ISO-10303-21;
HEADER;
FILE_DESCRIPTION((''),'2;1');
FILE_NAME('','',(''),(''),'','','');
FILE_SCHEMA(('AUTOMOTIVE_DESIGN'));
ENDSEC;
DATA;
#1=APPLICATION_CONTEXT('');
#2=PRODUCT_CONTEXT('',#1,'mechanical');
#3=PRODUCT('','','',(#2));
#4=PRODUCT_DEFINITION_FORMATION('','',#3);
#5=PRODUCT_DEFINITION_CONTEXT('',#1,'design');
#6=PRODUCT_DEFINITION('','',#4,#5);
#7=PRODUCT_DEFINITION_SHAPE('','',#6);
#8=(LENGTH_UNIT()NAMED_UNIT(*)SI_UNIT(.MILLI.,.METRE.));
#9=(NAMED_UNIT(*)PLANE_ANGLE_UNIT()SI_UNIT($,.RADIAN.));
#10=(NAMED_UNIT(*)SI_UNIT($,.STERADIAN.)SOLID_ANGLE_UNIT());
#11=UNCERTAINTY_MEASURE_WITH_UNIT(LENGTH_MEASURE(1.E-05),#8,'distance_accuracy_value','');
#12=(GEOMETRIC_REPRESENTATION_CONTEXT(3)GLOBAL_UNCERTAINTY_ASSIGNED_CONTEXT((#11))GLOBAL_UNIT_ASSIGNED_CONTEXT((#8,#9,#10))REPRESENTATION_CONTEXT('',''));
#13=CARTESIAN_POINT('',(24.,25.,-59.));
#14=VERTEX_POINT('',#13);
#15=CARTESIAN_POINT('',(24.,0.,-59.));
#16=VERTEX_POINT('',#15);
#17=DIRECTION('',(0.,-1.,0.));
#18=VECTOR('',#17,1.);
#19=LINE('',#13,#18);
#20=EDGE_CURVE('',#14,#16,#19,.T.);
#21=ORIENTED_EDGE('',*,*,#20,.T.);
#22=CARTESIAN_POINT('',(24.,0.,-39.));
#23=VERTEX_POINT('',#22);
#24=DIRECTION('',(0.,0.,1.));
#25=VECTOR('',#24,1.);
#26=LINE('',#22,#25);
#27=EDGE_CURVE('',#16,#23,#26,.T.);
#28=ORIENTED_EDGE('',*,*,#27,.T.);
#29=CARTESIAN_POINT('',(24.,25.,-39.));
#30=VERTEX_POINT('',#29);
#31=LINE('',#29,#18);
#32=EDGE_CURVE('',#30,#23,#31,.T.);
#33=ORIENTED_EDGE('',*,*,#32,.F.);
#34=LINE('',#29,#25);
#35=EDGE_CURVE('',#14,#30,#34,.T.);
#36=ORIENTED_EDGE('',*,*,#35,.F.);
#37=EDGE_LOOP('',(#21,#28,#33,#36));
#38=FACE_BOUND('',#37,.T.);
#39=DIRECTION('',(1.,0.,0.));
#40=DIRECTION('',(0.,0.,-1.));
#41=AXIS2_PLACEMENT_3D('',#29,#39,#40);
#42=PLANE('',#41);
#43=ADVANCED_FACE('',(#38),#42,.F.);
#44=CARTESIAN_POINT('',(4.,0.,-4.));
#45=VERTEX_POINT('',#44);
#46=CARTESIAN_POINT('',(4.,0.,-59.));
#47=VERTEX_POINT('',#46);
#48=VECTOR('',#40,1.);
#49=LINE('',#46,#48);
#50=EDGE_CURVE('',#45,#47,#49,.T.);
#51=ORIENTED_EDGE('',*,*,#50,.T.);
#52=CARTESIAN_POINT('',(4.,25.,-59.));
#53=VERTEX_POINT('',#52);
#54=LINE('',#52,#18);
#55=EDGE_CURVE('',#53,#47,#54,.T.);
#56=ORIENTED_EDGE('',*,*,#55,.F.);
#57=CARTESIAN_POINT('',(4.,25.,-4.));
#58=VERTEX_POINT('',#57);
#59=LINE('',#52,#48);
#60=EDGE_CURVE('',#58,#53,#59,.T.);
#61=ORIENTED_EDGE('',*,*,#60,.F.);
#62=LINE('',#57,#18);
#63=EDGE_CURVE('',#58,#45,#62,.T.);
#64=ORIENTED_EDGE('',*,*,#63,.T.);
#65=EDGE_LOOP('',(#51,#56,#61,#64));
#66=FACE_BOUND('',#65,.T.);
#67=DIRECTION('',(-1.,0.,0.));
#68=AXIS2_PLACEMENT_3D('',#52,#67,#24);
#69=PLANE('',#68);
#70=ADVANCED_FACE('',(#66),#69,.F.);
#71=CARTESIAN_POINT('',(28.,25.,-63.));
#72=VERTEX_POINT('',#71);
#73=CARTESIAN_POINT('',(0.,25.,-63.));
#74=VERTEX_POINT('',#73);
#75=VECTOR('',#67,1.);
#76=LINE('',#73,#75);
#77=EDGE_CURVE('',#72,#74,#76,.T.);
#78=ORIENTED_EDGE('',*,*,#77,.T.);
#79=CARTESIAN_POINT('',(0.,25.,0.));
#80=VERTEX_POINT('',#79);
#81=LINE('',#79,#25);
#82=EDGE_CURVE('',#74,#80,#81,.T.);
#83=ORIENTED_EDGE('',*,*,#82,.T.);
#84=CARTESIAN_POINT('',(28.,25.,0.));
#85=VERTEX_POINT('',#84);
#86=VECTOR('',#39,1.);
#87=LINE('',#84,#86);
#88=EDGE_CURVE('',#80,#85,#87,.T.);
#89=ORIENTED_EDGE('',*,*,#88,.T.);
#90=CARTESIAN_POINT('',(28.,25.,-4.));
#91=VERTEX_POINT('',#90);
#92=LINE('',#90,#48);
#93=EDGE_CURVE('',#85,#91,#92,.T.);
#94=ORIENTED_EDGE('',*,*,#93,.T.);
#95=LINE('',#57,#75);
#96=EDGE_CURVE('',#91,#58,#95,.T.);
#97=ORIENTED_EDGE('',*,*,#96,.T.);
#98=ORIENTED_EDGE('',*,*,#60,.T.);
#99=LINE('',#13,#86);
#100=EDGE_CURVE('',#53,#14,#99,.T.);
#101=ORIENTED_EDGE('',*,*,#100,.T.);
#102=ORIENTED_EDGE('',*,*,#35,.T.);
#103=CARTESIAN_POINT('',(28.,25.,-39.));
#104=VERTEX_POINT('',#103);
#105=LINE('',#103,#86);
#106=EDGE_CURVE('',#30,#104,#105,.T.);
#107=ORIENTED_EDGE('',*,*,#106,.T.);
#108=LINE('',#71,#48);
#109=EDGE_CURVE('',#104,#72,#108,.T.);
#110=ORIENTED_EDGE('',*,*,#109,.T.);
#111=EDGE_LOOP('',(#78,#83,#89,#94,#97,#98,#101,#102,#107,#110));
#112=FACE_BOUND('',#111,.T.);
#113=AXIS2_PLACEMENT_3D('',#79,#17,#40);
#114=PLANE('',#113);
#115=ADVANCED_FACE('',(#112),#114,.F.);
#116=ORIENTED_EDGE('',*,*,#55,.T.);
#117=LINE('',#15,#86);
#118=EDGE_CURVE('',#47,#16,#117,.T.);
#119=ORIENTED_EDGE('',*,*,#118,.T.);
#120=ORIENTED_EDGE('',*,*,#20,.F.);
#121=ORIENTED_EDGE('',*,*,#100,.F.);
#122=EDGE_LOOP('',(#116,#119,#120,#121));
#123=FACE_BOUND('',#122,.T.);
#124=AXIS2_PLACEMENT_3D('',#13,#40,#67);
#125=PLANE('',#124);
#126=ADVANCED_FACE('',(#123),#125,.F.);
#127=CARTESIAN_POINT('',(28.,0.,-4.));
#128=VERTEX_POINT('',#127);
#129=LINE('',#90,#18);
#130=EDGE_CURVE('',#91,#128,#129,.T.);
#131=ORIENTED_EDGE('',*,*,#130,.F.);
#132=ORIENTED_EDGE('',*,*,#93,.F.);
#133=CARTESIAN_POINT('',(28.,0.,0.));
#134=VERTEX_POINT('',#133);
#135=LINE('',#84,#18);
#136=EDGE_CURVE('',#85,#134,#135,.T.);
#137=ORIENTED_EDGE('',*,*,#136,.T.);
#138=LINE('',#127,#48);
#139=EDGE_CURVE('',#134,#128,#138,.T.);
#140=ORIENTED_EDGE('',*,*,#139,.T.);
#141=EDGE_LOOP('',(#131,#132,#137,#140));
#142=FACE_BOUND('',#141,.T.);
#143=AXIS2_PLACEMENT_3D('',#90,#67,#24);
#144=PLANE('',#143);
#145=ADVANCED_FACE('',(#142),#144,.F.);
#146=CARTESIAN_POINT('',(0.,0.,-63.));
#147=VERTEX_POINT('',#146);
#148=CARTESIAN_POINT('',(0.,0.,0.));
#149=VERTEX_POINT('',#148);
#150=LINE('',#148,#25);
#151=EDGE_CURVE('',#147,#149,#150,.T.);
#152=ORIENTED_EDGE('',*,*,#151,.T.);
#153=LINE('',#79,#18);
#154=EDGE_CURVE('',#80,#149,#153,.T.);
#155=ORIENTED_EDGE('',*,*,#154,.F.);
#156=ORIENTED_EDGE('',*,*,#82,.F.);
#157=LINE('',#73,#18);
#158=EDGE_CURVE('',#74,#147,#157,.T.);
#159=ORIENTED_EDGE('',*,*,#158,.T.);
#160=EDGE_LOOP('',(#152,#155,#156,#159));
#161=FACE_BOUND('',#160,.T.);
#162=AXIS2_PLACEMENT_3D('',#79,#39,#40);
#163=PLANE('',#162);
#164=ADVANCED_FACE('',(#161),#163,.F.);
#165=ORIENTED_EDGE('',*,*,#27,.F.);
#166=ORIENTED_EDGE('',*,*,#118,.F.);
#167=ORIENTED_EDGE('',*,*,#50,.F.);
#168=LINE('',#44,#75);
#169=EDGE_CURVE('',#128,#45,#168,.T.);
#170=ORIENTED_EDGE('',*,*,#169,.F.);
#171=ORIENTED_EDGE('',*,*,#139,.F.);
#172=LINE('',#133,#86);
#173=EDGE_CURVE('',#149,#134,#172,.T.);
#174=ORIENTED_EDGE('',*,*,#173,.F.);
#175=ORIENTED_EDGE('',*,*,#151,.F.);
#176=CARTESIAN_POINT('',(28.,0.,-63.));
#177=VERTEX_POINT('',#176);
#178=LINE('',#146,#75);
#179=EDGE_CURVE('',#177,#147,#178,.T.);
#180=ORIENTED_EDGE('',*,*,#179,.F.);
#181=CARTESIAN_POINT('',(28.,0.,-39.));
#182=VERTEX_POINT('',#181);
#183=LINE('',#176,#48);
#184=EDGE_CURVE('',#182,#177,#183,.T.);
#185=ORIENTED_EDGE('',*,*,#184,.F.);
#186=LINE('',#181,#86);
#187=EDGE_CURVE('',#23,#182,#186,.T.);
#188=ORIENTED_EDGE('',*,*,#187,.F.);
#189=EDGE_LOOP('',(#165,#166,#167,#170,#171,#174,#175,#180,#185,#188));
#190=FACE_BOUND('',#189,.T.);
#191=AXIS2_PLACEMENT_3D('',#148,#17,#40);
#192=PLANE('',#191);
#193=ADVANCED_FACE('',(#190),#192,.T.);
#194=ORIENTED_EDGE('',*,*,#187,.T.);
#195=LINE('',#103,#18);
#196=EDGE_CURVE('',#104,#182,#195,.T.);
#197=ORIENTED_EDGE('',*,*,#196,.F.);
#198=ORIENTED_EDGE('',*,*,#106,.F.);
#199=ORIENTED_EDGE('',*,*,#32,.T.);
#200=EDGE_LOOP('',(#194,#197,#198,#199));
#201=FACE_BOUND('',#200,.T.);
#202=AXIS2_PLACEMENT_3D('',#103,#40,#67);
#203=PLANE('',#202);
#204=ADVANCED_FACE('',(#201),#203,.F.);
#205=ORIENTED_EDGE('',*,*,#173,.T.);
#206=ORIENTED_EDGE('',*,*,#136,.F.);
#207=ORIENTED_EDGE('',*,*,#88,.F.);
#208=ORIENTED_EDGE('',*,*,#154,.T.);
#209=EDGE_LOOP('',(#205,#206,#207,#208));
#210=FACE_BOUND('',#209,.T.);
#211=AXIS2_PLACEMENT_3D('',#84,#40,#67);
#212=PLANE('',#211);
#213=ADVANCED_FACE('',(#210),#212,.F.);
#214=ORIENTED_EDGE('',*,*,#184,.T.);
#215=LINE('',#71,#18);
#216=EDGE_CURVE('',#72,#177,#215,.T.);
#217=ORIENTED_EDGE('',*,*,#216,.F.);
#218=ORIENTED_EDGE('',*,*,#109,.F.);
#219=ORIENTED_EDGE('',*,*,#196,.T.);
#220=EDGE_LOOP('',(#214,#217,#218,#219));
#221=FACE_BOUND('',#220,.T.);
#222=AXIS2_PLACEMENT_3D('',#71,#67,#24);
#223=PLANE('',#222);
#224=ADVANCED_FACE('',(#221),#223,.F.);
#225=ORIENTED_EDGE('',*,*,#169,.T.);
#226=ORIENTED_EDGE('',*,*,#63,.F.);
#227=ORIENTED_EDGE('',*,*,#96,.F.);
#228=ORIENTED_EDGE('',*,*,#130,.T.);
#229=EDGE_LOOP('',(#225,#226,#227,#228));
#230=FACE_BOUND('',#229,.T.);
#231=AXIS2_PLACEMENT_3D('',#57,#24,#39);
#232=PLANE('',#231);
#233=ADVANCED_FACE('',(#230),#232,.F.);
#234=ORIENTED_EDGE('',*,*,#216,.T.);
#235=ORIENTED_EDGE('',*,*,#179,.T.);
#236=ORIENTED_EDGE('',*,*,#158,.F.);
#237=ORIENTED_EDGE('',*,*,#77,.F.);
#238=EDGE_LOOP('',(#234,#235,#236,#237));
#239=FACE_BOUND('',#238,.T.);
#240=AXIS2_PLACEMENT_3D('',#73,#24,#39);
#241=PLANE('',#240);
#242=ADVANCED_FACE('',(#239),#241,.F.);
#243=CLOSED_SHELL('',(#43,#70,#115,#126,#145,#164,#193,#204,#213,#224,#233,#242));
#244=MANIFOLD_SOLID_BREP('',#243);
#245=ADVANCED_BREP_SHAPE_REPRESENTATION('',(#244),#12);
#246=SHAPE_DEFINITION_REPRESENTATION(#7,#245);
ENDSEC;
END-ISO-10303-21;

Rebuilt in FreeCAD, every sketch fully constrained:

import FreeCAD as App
import Part
import Sketcher
from FreeCAD import Vector

doc = App.newDocument("Part")
body = doc.addObject("PartDesign::Body", "Body")

# Sketch on XZ plane
sketch1 = body.newObject("Sketcher::SketchObject", "Sketch")
sketch1.AttachmentSupport = (doc.getObject("XZ_Plane"), [""])
sketch1.MapMode = "FlatFace"
sketch1.addGeometry(Part.LineSegment(Vector(0, -63, 0), Vector(0, 0, 0)), False)
sketch1.addGeometry(Part.LineSegment(Vector(0, 0, 0), Vector(28, 0, 0)), False)
sketch1.addGeometry(Part.LineSegment(Vector(28, 0, 0), Vector(28, -4, 0)), False)
sketch1.addGeometry(Part.LineSegment(Vector(28, -4, 0), Vector(4, -4, 0)), False)
sketch1.addGeometry(Part.LineSegment(Vector(4, -4, 0), Vector(4, -59, 0)), False)
sketch1.addGeometry(Part.LineSegment(Vector(4, -59, 0), Vector(24, -59, 0)), False)
sketch1.addGeometry(Part.LineSegment(Vector(24, -59, 0), Vector(24, -39, 0)), False)
sketch1.addGeometry(Part.LineSegment(Vector(24, -39, 0), Vector(28, -39, 0)), False)
sketch1.addGeometry(Part.LineSegment(Vector(28, -39, 0), Vector(28, -63, 0)), False)
sketch1.addGeometry(Part.LineSegment(Vector(28, -63, 0), Vector(0, -63, 0)), False)
sketch1.addConstraint(Sketcher.Constraint("Coincident", 0, 2, 1, 1))
sketch1.addConstraint(Sketcher.Constraint("Coincident", 1, 2, 2, 1))
sketch1.addConstraint(Sketcher.Constraint("Coincident", 2, 2, 3, 1))
sketch1.addConstraint(Sketcher.Constraint("Coincident", 3, 2, 4, 1))
sketch1.addConstraint(Sketcher.Constraint("Coincident", 4, 2, 5, 1))
sketch1.addConstraint(Sketcher.Constraint("Coincident", 5, 2, 6, 1))
sketch1.addConstraint(Sketcher.Constraint("Coincident", 6, 2, 7, 1))
sketch1.addConstraint(Sketcher.Constraint("Coincident", 7, 2, 8, 1))
sketch1.addConstraint(Sketcher.Constraint("Coincident", 8, 2, 9, 1))
sketch1.addConstraint(Sketcher.Constraint("Coincident", 9, 2, 0, 1))
sketch1.addConstraint(Sketcher.Constraint("Vertical", 0))
sketch1.addConstraint(Sketcher.Constraint("Horizontal", 1))
sketch1.addConstraint(Sketcher.Constraint("Vertical", 2))
sketch1.addConstraint(Sketcher.Constraint("Horizontal", 3))
sketch1.addConstraint(Sketcher.Constraint("Vertical", 4))
sketch1.addConstraint(Sketcher.Constraint("Horizontal", 5))
sketch1.addConstraint(Sketcher.Constraint("Vertical", 6))
sketch1.addConstraint(Sketcher.Constraint("Horizontal", 7))
sketch1.addConstraint(Sketcher.Constraint("Vertical", 8))
sketch1.addConstraint(Sketcher.Constraint("Horizontal", 9))
sketch1.addConstraint(Sketcher.Constraint("Coincident", 0, 2, -1, 1))
sketch1.addConstraint(Sketcher.Constraint("Vertical", 2, 2, 7, 2))
sketch1.addConstraint(Sketcher.Constraint("Equal", 7, 2))
sketch1.addConstraint(Sketcher.Constraint("Equal", 5, 6))
sketch1.addConstraint(Sketcher.Constraint("Equal", 3, 8))
sketch1.addConstraint(Sketcher.Constraint("DistanceX", 1, 1, 1, 2, 28.0))
sketch1.addConstraint(Sketcher.Constraint("DistanceX", 3, 2, 3, 1, 24.0))
sketch1.addConstraint(Sketcher.Constraint("DistanceX", 5, 1, 5, 2, 20.0))
sketch1.addConstraint(Sketcher.Constraint("DistanceY", 0, 1, 0, 2, 63.0))
pad1 = body.newObject("PartDesign::Pad", "Pad")
pad1.Profile = sketch1
pad1.Length = 25
pad1.Reversed = True

doc.recompute()
